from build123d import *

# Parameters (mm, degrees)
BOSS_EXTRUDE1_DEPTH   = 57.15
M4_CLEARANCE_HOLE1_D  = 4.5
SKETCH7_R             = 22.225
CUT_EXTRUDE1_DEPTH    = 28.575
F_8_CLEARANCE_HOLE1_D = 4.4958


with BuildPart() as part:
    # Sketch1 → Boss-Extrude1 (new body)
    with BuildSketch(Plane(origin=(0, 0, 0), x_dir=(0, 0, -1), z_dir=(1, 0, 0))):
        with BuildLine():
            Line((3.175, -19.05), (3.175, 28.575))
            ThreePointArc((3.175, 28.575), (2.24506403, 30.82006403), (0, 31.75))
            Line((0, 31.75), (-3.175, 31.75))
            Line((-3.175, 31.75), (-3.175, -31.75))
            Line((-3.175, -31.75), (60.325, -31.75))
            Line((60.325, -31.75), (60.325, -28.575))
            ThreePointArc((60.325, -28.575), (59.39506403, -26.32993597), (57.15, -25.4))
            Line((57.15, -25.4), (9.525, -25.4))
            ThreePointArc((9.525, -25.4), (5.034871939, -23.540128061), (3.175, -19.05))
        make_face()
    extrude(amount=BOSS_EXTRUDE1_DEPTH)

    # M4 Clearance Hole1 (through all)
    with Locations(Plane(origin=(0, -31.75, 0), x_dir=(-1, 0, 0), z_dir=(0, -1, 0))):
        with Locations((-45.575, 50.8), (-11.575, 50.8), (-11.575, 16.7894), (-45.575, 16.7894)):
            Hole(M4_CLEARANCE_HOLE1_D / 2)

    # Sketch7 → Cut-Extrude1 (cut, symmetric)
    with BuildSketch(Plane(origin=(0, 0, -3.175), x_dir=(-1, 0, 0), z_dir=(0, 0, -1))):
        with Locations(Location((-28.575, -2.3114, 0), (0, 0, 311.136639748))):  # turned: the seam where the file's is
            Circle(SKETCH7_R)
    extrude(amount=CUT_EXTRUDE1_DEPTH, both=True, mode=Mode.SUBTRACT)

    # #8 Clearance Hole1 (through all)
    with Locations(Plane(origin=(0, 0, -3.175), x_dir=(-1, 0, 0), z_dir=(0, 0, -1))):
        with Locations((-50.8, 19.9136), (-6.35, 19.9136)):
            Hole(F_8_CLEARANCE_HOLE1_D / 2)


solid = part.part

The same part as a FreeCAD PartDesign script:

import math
import FreeCAD as App
import Part
import Sketcher
from FreeCAD import Vector
Q = App.Units.Quantity

doc = App.newDocument("Part")
params = doc.addObject("Spreadsheet::Sheet", "Params")
for row, (alias, value) in enumerate([
    ("sketch1_radius", "0.25 in"),
    ("sketch1_width", "2.5 in"),
    ("sketch1_radius2", "0.125 in"),
    ("pad1_length", "2.25 in"),
    ("hole_diameter", "4.5 mm"),
    ("sketch3_diameter", "1.75 in"),
    ("pocket1_length", "2.25 in"),
    ("sketch4_diameter", "0.177 in"),
    ("hole2_diameter", "0.177 in"),
], start=1):
    params.set(f"A{row}", alias)
    params.set(f"B{row}", "=" + value)
    params.setAlias(f"B{row}", alias)

body = doc.addObject("PartDesign::Body", "Body")

sketch1 = body.newObject("Sketcher::SketchObject", "Sketch")
sketch1.AttachmentSupport = (doc.getObject("YZ_Plane"), [""])
sketch1.MapMode = "FlatFace"
sketch1.addGeometry([
    Part.LineSegment(Vector(-19.1, -3.2, 0), Vector(28.6, -3.2, 0)),
    Part.ArcOfCircle(Part.Circle(Vector(28.6, 0, 0), Vector(0, 0, 1), 3.2), math.radians(-90), math.radians(0)),
    Part.LineSegment(Vector(31.8, 0, 0), Vector(31.8, 3.2, 0)),
    Part.LineSegment(Vector(31.8, 3.2, 0), Vector(-31.8, 3.2, 0)),
    Part.LineSegment(Vector(-31.8, 3.2, 0), Vector(-31.8, -60.3, 0)),
    Part.LineSegment(Vector(-31.8, -60.3, 0), Vector(-28.6, -60.3, 0)),
    Part.ArcOfCircle(Part.Circle(Vector(-28.6, -57.1, 0), Vector(0, 0, 1), 3.2), math.radians(-90), math.radians(0)),
    Part.LineSegment(Vector(-25.4, -57.1, 0), Vector(-25.4, -9.5, 0)),
    Part.ArcOfCircle(Part.Circle(Vector(-19.1, -9.5, 0), Vector(0, 0, 1), 6.3), math.radians(90), math.radians(180)),
], False)
sketch1.addConstraint([
    Sketcher.Constraint("Tangent", 0, 2, 1, 1),
    Sketcher.Constraint("Tangent", 1, 2, 2, 1),
    Sketcher.Constraint("Coincident", 2, 2, 3, 1),
    Sketcher.Constraint("Coincident", 3, 2, 4, 1),
    Sketcher.Constraint("Coincident", 4, 2, 5, 1),
    Sketcher.Constraint("Tangent", 5, 2, 6, 1),
    Sketcher.Constraint("Tangent", 6, 2, 7, 1),
    Sketcher.Constraint("Tangent", 7, 2, 8, 2),
    Sketcher.Constraint("Tangent", 8, 1, 0, 1),
    Sketcher.Constraint("Horizontal", 0),
    Sketcher.Constraint("Vertical", 2),
    Sketcher.Constraint("Horizontal", 3),
    Sketcher.Constraint("Vertical", 4),
    Sketcher.Constraint("Horizontal", 5),
    Sketcher.Constraint("Vertical", 7),
    Sketcher.Constraint("Equal", 1, 6),
    Sketcher.Constraint("PointOnObject", 1, 3, -1),
    Sketcher.Constraint("Equal", 5, 2),
    Sketcher.Constraint("Equal", 3, 4),
    Sketcher.Constraint("Radius", 8, Q("0.25 in")),
    Sketcher.Constraint("DistanceX", 3, 2, 3, 1, Q("2.5 in")),
    Sketcher.Constraint("DistanceX", 6, 2, -1, 1, Q("1 in")),
    Sketcher.Constraint("Radius", 1, Q("0.125 in")),
    Sketcher.Constraint("DistanceX", 8, 3, 1, 2, Q("2 in")),
])
sketch1.setExpression("Constraints[19]", "Params.sketch1_radius")
sketch1.setExpression("Constraints[20]", "Params.sketch1_width")
sketch1.setExpression("Constraints[22]", "Params.sketch1_radius2")
pad1 = body.newObject("PartDesign::Pad", "Pad")
pad1.Profile = sketch1
pad1.setExpression("Length", "Params.pad1_length")

sketch2 = body.newObject("Sketcher::SketchObject", "Sketch001")
sketch2.AttachmentSupport = (doc.getObject("XZ_Plane"), [""])
sketch2.MapMode = "FlatFace"
sketch2.AttachmentOffset = App.Placement(Vector(0, 0, 1.25 * 25.4), App.Rotation())
sketch2.addGeometry([
    Part.Circle(Vector(45.6, -50.8, 0), Vector(0, 0, 1), 2.2),
    Part.Circle(Vector(11.6, -50.8, 0), Vector(0, 0, 1), 2.2),
    Part.Circle(Vector(11.6, -16.8, 0), Vector(0, 0, 1), 2.2),
    Part.Circle(Vector(45.6, -16.8, 0), Vector(0, 0, 1), 2.2),
], False)
sketch2.addConstraint([
    Sketcher.Constraint("Equal", 0, 1),
    Sketcher.Constraint("Equal", 1, 2),
    Sketcher.Constraint("Equal", 2, 3),
    Sketcher.Constraint("Horizontal", 0, 3, 1, 3),
    Sketcher.Constraint("Horizontal", 2, 3, 3, 3),
    Sketcher.Constraint("Vertical", 1, 3, 2, 3),
    Sketcher.Constraint("Vertical", 0, 3, 3, 3),
    Sketcher.Constraint("DistanceY", 0, 3, -1, 1, Q("2 in")),
    Sketcher.Constraint("Diameter", 0, Q("4.5 mm")),
    Sketcher.Constraint("DistanceY", 2, 3, -1, 1, Q("0.661 in")),
    Sketcher.Constraint("DistanceX", -1, 1, 0, 3, Q("45.575 mm")),
    Sketcher.Constraint("DistanceX", -1, 1, 1, 3, Q("11.575 mm")),
])
doc.recompute()
hole = body.newObject("PartDesign::Hole", "Hole")
hole.Profile = sketch2
hole.ThreadType = "None"
hole.setExpression("Diameter", "Params.hole_diameter")
hole.DepthType = "ThroughAll"

sketch3 = body.newObject("Sketcher::SketchObject", "Sketch002")
sketch3.AttachmentSupport = (doc.getObject("XY_Plane"), [""])
sketch3.MapMode = "FlatFace"
sketch3.AttachmentOffset = App.Placement(Vector(0, 0, -0.125 * 25.4), App.Rotation())
sketch3.addGeometry(Part.Circle(Vector(29, -2, 0), Vector(0, 0, 1), 22), False)
sketch3.addConstraint([
    Sketcher.Constraint("Diameter", 0, Q("1.75 in")),
    Sketcher.Constraint("DistanceX", -1, 1, 0, 3, Q("1.125 in")),
    Sketcher.Constraint("DistanceY", 0, 3, -1, 1, Q("0.091 in")),
])
sketch3.setExpression("Constraints[0]", "Params.sketch3_diameter")
pocket1 = body.newObject("PartDesign::Pocket", "Pocket")
pocket1.Profile = sketch3
pocket1.setExpression("Length", "Params.pocket1_length")
pocket1.Midplane = True

sketch4 = body.newObject("Sketcher::SketchObject", "Sketch003")
sketch4.AttachmentSupport = (doc.getObject("XY_Plane"), [""])
sketch4.MapMode = "FlatFace"
sketch4.AttachmentOffset = App.Placement(Vector(0, 0, -0.125 * 25.4), App.Rotation())
sketch4.addGeometry([
    Part.Circle(Vector(50.8, 19.9, 0), Vector(0, 0, 1), 2.2),
    Part.Circle(Vector(6.3, 19.9, 0), Vector(0, 0, 1), 2.2),
], False)
sketch4.addConstraint([
    Sketcher.Constraint("Equal", 0, 1),
    Sketcher.Constraint("Horizontal", 0, 3, 1, 3),
    Sketcher.Constraint("Diameter", 0, Q("0.177 in")),
    Sketcher.Constraint("DistanceX", -1, 1, 0, 3, Q("2 in")),
    Sketcher.Constraint("DistanceX", -1, 1, 1, 3, Q("0.25 in")),
    Sketcher.Constraint("DistanceY", -1, 1, 0, 3, Q("0.784 in")),
])
sketch4.setExpression("Constraints[2]", "Params.sketch4_diameter")
doc.recompute()
hole2 = body.newObject("PartDesign::Hole", "Hole001")
hole2.Profile = sketch4
hole2.ThreadType = "None"
hole2.setExpression("Diameter", "Params.hole2_diameter")
hole2.DepthType = "ThroughAll"
hole2.Reversed = True

doc.recompute()
